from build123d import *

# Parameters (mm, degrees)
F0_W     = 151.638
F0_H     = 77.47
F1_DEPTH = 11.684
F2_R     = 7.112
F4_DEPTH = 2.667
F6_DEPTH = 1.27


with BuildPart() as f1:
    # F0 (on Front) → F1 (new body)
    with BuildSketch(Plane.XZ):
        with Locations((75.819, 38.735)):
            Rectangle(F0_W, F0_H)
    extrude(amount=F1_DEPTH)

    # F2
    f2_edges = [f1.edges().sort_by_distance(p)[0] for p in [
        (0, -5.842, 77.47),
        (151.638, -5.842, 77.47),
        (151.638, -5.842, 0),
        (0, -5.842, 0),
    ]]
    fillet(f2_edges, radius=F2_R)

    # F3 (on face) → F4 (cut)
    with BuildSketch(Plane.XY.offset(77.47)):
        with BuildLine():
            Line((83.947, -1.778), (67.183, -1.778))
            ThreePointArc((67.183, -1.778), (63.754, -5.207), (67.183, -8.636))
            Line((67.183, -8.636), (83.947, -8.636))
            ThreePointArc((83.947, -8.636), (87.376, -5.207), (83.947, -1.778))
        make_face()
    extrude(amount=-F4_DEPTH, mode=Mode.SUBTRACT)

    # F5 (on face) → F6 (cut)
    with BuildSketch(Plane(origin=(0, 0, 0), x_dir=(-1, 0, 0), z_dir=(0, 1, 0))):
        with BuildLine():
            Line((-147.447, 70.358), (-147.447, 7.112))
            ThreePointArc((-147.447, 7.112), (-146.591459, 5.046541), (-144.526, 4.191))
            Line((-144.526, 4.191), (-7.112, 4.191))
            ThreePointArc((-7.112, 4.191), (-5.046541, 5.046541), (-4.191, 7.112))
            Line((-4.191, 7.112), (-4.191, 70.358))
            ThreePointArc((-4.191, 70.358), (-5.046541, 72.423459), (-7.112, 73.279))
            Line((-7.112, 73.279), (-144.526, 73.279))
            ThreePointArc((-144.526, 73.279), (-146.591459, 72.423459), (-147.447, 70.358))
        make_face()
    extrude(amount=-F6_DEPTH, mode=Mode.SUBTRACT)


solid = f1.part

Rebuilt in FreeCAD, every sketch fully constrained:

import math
import FreeCAD as App
import Part
import Sketcher

V = App.Vector
Q = App.Units.Quantity


def edges_at(feature, points):
    """Names of the edges that pass closest to the given points."""
    edges = feature.Shape.Edges
    near = lambda p: min(range(len(edges)), key=lambda i: edges[i].distToShape(Part.Vertex(*p))[0])
    return sorted({f"Edge{near(p) + 1}" for p in points})

doc = App.newDocument("Part")
body = doc.addObject("PartDesign::Body", "Body")

# Sketch on XZ plane
sketch1 = doc.addObject("Sketcher::SketchObject", "Sketch")
body.addObject(sketch1)
sketch1.AttachmentSupport = (doc.XZ_Plane, [""])
sketch1.MapMode = "FlatFace"
sketch1.addGeometry([
    Part.LineSegment(V(0, 77.47, 0), V(0, 0, 0)),
    Part.LineSegment(V(0, 0, 0), V(151.638, 0, 0)),
    Part.LineSegment(V(151.638, 0, 0), V(151.638, 77.47, 0)),
    Part.LineSegment(V(151.638, 77.47, 0), V(0, 77.47, 0)),
], False)
sketch1.addConstraint([
    Sketcher.Constraint("Coincident", 0, 2, 1, 1),
    Sketcher.Constraint("Coincident", 1, 2, 2, 1),
    Sketcher.Constraint("Coincident", 2, 2, 3, 1),
    Sketcher.Constraint("Coincident", 3, 2, 0, 1),
    Sketcher.Constraint("Vertical", 0),
    Sketcher.Constraint("Horizontal", 1),
    Sketcher.Constraint("Vertical", 2),
    Sketcher.Constraint("Horizontal", 3),
    Sketcher.Constraint("Coincident", 0, 2, -1, 1),
    Sketcher.Constraint("DistanceX", 1, 1, 1, 2, Q("5.97 in")),
    Sketcher.Constraint("DistanceY", 0, 2, 0, 1, Q("3.05 in")),
])
pad1 = doc.addObject("PartDesign::Pad", "Pad")
body.addObject(pad1)
pad1.Profile = sketch1
pad1.Length = Q("0.46 in")
doc.recompute()

fillet = doc.addObject("PartDesign::Fillet", "Fillet")
body.addObject(fillet)
fillet.Base = (pad1, edges_at(pad1, [
    (0, -5.842, 77.47),
    (151.638, -5.842, 77.47),
    (151.638, -5.842, 0),
    (0, -5.842, 0),
]))
fillet.Radius = Q("0.28 in")

# Sketch on XY plane
sketch2 = doc.addObject("Sketcher::SketchObject", "Sketch001")
body.addObject(sketch2)
sketch2.AttachmentSupport = (doc.XY_Plane, [""])
sketch2.MapMode = "FlatFace"
sketch2.AttachmentOffset = App.Placement(V(0, 0, 3.05 * 25.4), App.Rotation())
sketch2.addGeometry([
    Part.LineSegment(V(83.947, -1.778, 0), V(67.183, -1.778, 0)),
    Part.ArcOfCircle(Part.Circle(V(67.183, -5.207, 0), V(0, 0, 1), 3.429), math.radians(90), math.radians(270)),
    Part.LineSegment(V(67.183, -8.636, 0), V(83.947, -8.636, 0)),
    Part.ArcOfCircle(Part.Circle(V(83.947, -5.207, 0), V(0, 0, 1), 3.429), math.radians(-90), math.radians(90)),
], False)
sketch2.addConstraint([
    Sketcher.Constraint("Tangent", 0, 2, 1, 1),
    Sketcher.Constraint("Tangent", 1, 2, 2, 1),
    Sketcher.Constraint("Tangent", 2, 2, 3, 1),
    Sketcher.Constraint("Tangent", 3, 2, 0, 1),
    Sketcher.Constraint("Horizontal", 0),
    Sketcher.Constraint("Horizontal", 2),
    Sketcher.Constraint("Radius", 1, Q("0.135 in")),
    Sketcher.Constraint("DistanceX", 0, 2, 0, 1, Q("0.66 in")),
    Sketcher.Constraint("DistanceY", 0, 2, -1, 1, Q("0.07 in")),
    Sketcher.Constraint("DistanceX", -1, 1, 1, 3, Q("2.645 in")),
])
pocket1 = doc.addObject("PartDesign::Pocket", "Pocket")
body.addObject(pocket1)
pocket1.Profile = sketch2
pocket1.Length = Q("0.105 in")

# Sketch on XZ plane
sketch3 = doc.addObject("Sketcher::SketchObject", "Sketch002")
body.addObject(sketch3)
sketch3.AttachmentSupport = (doc.XZ_Plane, [""])
sketch3.MapMode = "FlatFace"
sketch3.addGeometry([
    Part.LineSegment(V(147.447, 70.358, 0), V(147.447, 7.112, 0)),  # 0
    Part.ArcOfCircle(Part.Circle(V(144.526, 7.112, 0), V(0, 0, 1), 2.921), math.radians(-90.000006), math.radians(0.000006)),  # 1
    Part.LineSegment(V(144.526, 4.191, 0), V(7.112, 4.191, 0)),  # 2
    Part.ArcOfCircle(Part.Circle(V(7.112, 7.112, 0), V(0, 0, 1), 2.921), math.radians(179.999994), math.radians(270.000006)),  # 3
    Part.LineSegment(V(4.191, 7.112, 0), V(4.191, 70.358, 0)),  # 4
    Part.ArcOfCircle(Part.Circle(V(7.112, 70.358, 0), V(0, 0, 1), 2.921), math.radians(89.999994), math.radians(180.000006)),  # 5
    Part.LineSegment(V(7.112, 73.279, 0), V(144.526, 73.279, 0)),  # 6
    Part.ArcOfCircle(Part.Circle(V(144.526, 70.358, 0), V(0, 0, 1), 2.921), math.radians(-0.000006), math.radians(90.000006)),  # 7
], False)
sketch3.addConstraint([
    Sketcher.Constraint("Tangent", 0, 2, 1, 2),
    Sketcher.Constraint("Tangent", 1, 1, 2, 1),
    Sketcher.Constraint("Tangent", 2, 2, 3, 2),
    Sketcher.Constraint("Tangent", 3, 1, 4, 1),
    Sketcher.Constraint("Tangent", 4, 2, 5, 2),
    Sketcher.Constraint("Tangent", 5, 1, 6, 1),
    Sketcher.Constraint("Tangent", 6, 2, 7, 2),
    Sketcher.Constraint("Tangent", 7, 1, 0, 1),
    Sketcher.Constraint("Vertical", 0),
    Sketcher.Constraint("Horizontal", 2),
    Sketcher.Constraint("Vertical", 4),
    Sketcher.Constraint("Horizontal", 6),
    Sketcher.Constraint("Equal", 1, 3),
    Sketcher.Constraint("Equal", 3, 5),
    Sketcher.Constraint("Equal", 5, 7),
    Sketcher.Constraint("Radius", 1, Q("0.115 in")),
    Sketcher.Constraint("DistanceX", 2, 2, 2, 1, Q("5.41 in")),
    Sketcher.Constraint("DistanceY", 0, 2, 0, 1, Q("2.49 in")),
    Sketcher.Constraint("DistanceX", -1, 1, 1, 3, Q("5.69 in")),
    Sketcher.Constraint("DistanceY", -1, 1, 1, 3, Q("0.28 in")),
])
pocket2 = doc.addObject("PartDesign::Pocket", "Pocket001")
body.addObject(pocket2)
pocket2.Profile = sketch3
pocket2.Length = Q("0.05 in")
pocket2.Reversed = True

doc.recompute()
